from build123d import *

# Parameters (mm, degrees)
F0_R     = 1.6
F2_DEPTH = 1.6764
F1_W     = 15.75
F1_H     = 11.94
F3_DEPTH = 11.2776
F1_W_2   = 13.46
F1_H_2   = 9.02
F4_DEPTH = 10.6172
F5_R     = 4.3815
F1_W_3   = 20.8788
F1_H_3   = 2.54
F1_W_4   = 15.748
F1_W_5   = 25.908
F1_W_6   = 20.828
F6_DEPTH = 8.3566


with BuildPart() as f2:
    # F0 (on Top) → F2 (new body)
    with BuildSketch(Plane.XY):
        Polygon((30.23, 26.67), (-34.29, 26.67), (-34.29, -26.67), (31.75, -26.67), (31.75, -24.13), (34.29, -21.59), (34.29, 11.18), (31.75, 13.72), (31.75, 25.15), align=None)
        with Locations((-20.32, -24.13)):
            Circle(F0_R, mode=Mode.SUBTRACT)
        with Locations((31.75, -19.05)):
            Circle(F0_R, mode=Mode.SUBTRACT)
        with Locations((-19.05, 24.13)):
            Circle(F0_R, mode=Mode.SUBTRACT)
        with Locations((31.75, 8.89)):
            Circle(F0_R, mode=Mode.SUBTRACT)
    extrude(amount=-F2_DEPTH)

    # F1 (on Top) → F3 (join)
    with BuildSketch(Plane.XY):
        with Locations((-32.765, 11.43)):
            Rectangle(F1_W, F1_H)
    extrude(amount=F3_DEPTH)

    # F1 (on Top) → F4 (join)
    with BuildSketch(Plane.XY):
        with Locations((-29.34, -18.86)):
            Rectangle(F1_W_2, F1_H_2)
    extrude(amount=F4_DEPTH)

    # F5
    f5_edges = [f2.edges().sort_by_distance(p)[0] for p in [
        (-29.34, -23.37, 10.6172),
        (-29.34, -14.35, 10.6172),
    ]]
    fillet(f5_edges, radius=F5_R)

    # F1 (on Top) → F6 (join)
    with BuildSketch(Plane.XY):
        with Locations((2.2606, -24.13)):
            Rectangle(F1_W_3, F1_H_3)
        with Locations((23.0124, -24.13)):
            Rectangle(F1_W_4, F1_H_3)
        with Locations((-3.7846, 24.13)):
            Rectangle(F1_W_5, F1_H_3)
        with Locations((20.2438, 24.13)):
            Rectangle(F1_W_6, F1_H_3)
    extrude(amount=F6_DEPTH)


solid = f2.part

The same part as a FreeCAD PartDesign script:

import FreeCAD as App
import Part
import Sketcher
Q = App.Units.Quantity


def edges_at(feature, points):
    """Names of the edges that pass closest to the given points."""
    edges = feature.Shape.Edges
    near = lambda p: min(range(len(edges)), key=lambda i: edges[i].distToShape(Part.Vertex(*p))[0])
    return sorted({f"Edge{near(p) + 1}" for p in points})

doc = App.newDocument("Part")
body = doc.addObject("PartDesign::Body", "Body")

# Sketch on XY plane
sketch1 = body.newObject("Sketcher::SketchObject", "Sketch")
sketch1.AttachmentSupport = (doc.getObject("XY_Plane"), [""])
sketch1.MapMode = "FlatFace"
sketch1.addGeometry([
    Part.LineSegment(App.Vector(30.23, 26.67, 0), App.Vector(-34.29, 26.67, 0)),  # 0
    Part.LineSegment(App.Vector(-34.29, 26.67, 0), App.Vector(-34.29, -26.67, 0)),  # 1
    Part.LineSegment(App.Vector(-34.29, -26.67, 0), App.Vector(31.75, -26.67, 0)),  # 2
    Part.LineSegment(App.Vector(31.75, -26.67, 0), App.Vector(31.75, -24.13, 0)),  # 3
    Part.LineSegment(App.Vector(31.75, -24.13, 0), App.Vector(34.29, -21.59, 0)),  # 4
    Part.LineSegment(App.Vector(34.29, -21.59, 0), App.Vector(34.29, 11.18, 0)),  # 5
    Part.LineSegment(App.Vector(34.29, 11.18, 0), App.Vector(31.75, 13.72, 0)),  # 6
    Part.LineSegment(App.Vector(31.75, 13.72, 0), App.Vector(31.75, 25.15, 0)),  # 7
    Part.LineSegment(App.Vector(31.75, 25.15, 0), App.Vector(30.23, 26.67, 0)),  # 8
    Part.Circle(App.Vector(-20.32, -24.13, 0), App.Vector(0, 0, 1), 1.6),  # 9
    Part.Circle(App.Vector(31.75, -19.05, 0), App.Vector(0, 0, 1), 1.6),  # 10
    Part.Circle(App.Vector(-19.05, 24.13, 0), App.Vector(0, 0, 1), 1.6),  # 11
    Part.Circle(App.Vector(31.75, 8.89, 0), App.Vector(0, 0, 1), 1.6),  # 12
], False)
sketch1.addConstraint([
    Sketcher.Constraint("Coincident", 0, 2, 1, 1),
    Sketcher.Constraint("Coincident", 1, 2, 2, 1),
    Sketcher.Constraint("Coincident", 2, 2, 3, 1),
    Sketcher.Constraint("Coincident", 3, 2, 4, 1),
    Sketcher.Constraint("Coincident", 4, 2, 5, 1),
    Sketcher.Constraint("Coincident", 5, 2, 6, 1),
    Sketcher.Constraint("Coincident", 6, 2, 7, 1),
    Sketcher.Constraint("Coincident", 7, 2, 8, 1),
    Sketcher.Constraint("Coincident", 8, 2, 0, 1),
    Sketcher.Constraint("Horizontal", 0),
    Sketcher.Constraint("Vertical", 1),
    Sketcher.Constraint("Horizontal", 2),
    Sketcher.Constraint("Vertical", 3),
    Sketcher.Constraint("Vertical", 5),
    Sketcher.Constraint("Vertical", 7),
    Sketcher.Constraint("Equal", 9, 10),
    Sketcher.Constraint("Equal", 10, 11),
    Sketcher.Constraint("Equal", 11, 12),
    Sketcher.Constraint("Perpendicular", 4, 6),
    Sketcher.Constraint("Parallel", 6, 8),
    Sketcher.Constraint("Horizontal", 9, 3, 3, 2),
    Sketcher.Constraint("Vertical", 10, 3, 12, 3),
    Sketcher.Constraint("Vertical", 12, 3, 2, 2),
    Sketcher.Constraint("Vertical", 3, 2, 6, 2),
    Sketcher.Constraint("Equal", 4, 6),
    Sketcher.Constraint("DistanceX", 2, 1, 2, 2, Q("2.6 in")),
    Sketcher.Constraint("DistanceY", 1, 2, 1, 1, Q("2.1 in")),
    Sketcher.Constraint("DistanceY", 3, 1, 3, 2, Q("0.1 in")),
    Sketcher.Constraint("DistanceX", 11, 3, 10, 3, Q("2 in")),
    Sketcher.Constraint("DistanceY", 1, 2, 11, 3, Q("2 in")),
    Sketcher.Constraint("DistanceY", 7, 1, 7, 2, Q("0.45 in")),
    Sketcher.Constraint("DistanceX", 9, 3, -1, 1, Q("0.8 in")),
    Sketcher.Constraint("DistanceY", 9, 3, 10, 3, Q("0.2 in")),
    Sketcher.Constraint("DistanceY", 10, 3, 12, 3, Q("1.1 in")),
    Sketcher.Constraint("DistanceX", 10, 3, 4, 2, Q("0.1 in")),
    Sketcher.Constraint("Diameter", 9, 3.2),
    Sketcher.Constraint("DistanceY", 9, 3, -1, 1, Q("0.95 in")),
    Sketcher.Constraint("DistanceX", -1, 1, 10, 3, Q("1.25 in")),
    Sketcher.Constraint("DistanceX", 0, 2, 0, 1, 64.52),
])
pad1 = body.newObject("PartDesign::Pad", "Pad")
pad1.Profile = sketch1
pad1.Length = Q("0.066 in")
pad1.Reversed = True

# Sketch on XY plane
sketch2 = body.newObject("Sketcher::SketchObject", "Sketch001")
sketch2.AttachmentSupport = (doc.getObject("XY_Plane"), [""])
sketch2.MapMode = "FlatFace"
sketch2.addGeometry([
    Part.LineSegment(App.Vector(-40.64, 17.4, 0), App.Vector(-40.64, 5.46, 0)),
    Part.LineSegment(App.Vector(-40.64, 5.46, 0), App.Vector(-24.89, 5.46, 0)),
    Part.LineSegment(App.Vector(-24.89, 5.46, 0), App.Vector(-24.89, 17.4, 0)),
    Part.LineSegment(App.Vector(-24.89, 17.4, 0), App.Vector(-40.64, 17.4, 0)),
], False)
sketch2.addConstraint([
    Sketcher.Constraint("Coincident", 0, 2, 1, 1),
    Sketcher.Constraint("Coincident", 1, 2, 2, 1),
    Sketcher.Constraint("Coincident", 2, 2, 3, 1),
    Sketcher.Constraint("Coincident", 3, 2, 0, 1),
    Sketcher.Constraint("Vertical", 0),
    Sketcher.Constraint("Horizontal", 1),
    Sketcher.Constraint("Vertical", 2),
    Sketcher.Constraint("Horizontal", 3),
    Sketcher.Constraint("DistanceX", 0, 2, -1, 1, Q("1.6 in")),
    Sketcher.Constraint("DistanceX", 1, 1, 1, 2, 15.75),
    Sketcher.Constraint("DistanceY", 0, 2, 0, 1, 11.94),
    Sketcher.Constraint("DistanceY", -1, 1, 0, 2, 5.46),
])
pad2 = body.newObject("PartDesign::Pad", "Pad001")
pad2.Profile = sketch2
pad2.Length = Q("0.444 in")

# Sketch on XY plane
sketch3 = body.newObject("Sketcher::SketchObject", "Sketch002")
sketch3.AttachmentSupport = (doc.getObject("XY_Plane"), [""])
sketch3.MapMode = "FlatFace"
sketch3.addGeometry([
    Part.LineSegment(App.Vector(-36.07, -14.35, 0), App.Vector(-36.07, -23.37, 0)),
    Part.LineSegment(App.Vector(-36.07, -23.37, 0), App.Vector(-22.61, -23.37, 0)),
    Part.LineSegment(App.Vector(-22.61, -23.37, 0), App.Vector(-22.61, -14.35, 0)),
    Part.LineSegment(App.Vector(-22.61, -14.35, 0), App.Vector(-36.07, -14.35, 0)),
], False)
sketch3.addConstraint([
    Sketcher.Constraint("Coincident", 0, 2, 1, 1),
    Sketcher.Constraint("Coincident", 1, 2, 2, 1),
    Sketcher.Constraint("Coincident", 2, 2, 3, 1),
    Sketcher.Constraint("Coincident", 3, 2, 0, 1),
    Sketcher.Constraint("Vertical", 0),
    Sketcher.Constraint("Horizontal", 1),
    Sketcher.Constraint("Vertical", 2),
    Sketcher.Constraint("Horizontal", 3),
    Sketcher.Constraint("DistanceX", 1, 1, 1, 2, 13.46),
    Sketcher.Constraint("DistanceY", 0, 2, 0, 1, 9.02),
    Sketcher.Constraint("DistanceX", 0, 2, -1, 1, 36.07),
    Sketcher.Constraint("DistanceY", 0, 2, -1, 1, 23.37),
])
pad3 = body.newObject("PartDesign::Pad", "Pad002")
pad3.Profile = sketch3
pad3.Length = Q("0.418 in")
doc.recompute()

fillet = body.newObject("PartDesign::Fillet", "Fillet")
fillet.Base = (pad3, edges_at(pad3, [(-29.34, -23.37, 10.617), (-29.34, -14.35, 10.617)]))
fillet.Radius = Q("0.1725 in")

# Sketch on XY plane
sketch4 = body.newObject("Sketcher::SketchObject", "Sketch003")
sketch4.AttachmentSupport = (doc.getObject("XY_Plane"), [""])
sketch4.MapMode = "FlatFace"
sketch4.addGeometry([
    Part.LineSegment(App.Vector(-8.1788, -22.86, 0), App.Vector(-8.1788, -25.4, 0)),  # 0
    Part.LineSegment(App.Vector(-8.1788, -25.4, 0), App.Vector(12.7, -25.4, 0)),  # 1
    Part.LineSegment(App.Vector(12.7, -25.4, 0), App.Vector(12.7, -22.86, 0)),  # 2
    Part.LineSegment(App.Vector(12.7, -22.86, 0), App.Vector(-8.1788, -22.86, 0)),  # 3
    Part.LineSegment(App.Vector(15.1384, -22.86, 0), App.Vector(15.1384, -25.4, 0)),  # 4
    Part.LineSegment(App.Vector(15.1384, -25.4, 0), App.Vector(30.8864, -25.4, 0)),  # 5
    Part.LineSegment(App.Vector(30.8864, -25.4, 0), App.Vector(30.8864, -22.86, 0)),  # 6
    Part.LineSegment(App.Vector(30.8864, -22.86, 0), App.Vector(15.1384, -22.86, 0)),  # 7
    Part.LineSegment(App.Vector(-16.7386, 25.4, 0), App.Vector(-16.7386, 22.86, 0)),  # 8
    Part.LineSegment(App.Vector(-16.7386, 22.86, 0), App.Vector(9.1694, 22.86, 0)),  # 9
    Part.LineSegment(App.Vector(9.1694, 22.86, 0), App.Vector(9.1694, 25.4, 0)),  # 10
    Part.LineSegment(App.Vector(9.1694, 25.4, 0), App.Vector(-16.7386, 25.4, 0)),  # 11
    Part.LineSegment(App.Vector(9.8298, 25.4, 0), App.Vector(9.8298, 22.86, 0)),  # 12
    Part.LineSegment(App.Vector(9.8298, 22.86, 0), App.Vector(30.6578, 22.86, 0)),  # 13
    Part.LineSegment(App.Vector(30.6578, 22.86, 0), App.Vector(30.6578, 25.4, 0)),  # 14
    Part.LineSegment(App.Vector(30.6578, 25.4, 0), App.Vector(9.8298, 25.4, 0)),  # 15
], False)
sketch4.addConstraint([
    Sketcher.Constraint("Coincident", 0, 2, 1, 1),
    Sketcher.Constraint("Coincident", 1, 2, 2, 1),
    Sketcher.Constraint("Coincident", 2, 2, 3, 1),
    Sketcher.Constraint("Coincident", 3, 2, 0, 1),
    Sketcher.Constraint("Coincident", 4, 2, 5, 1),
    Sketcher.Constraint("Coincident", 5, 2, 6, 1),
    Sketcher.Constraint("Coincident", 6, 2, 7, 1),
    Sketcher.Constraint("Coincident", 7, 2, 4, 1),
    Sketcher.Constraint("Coincident", 8, 2, 9, 1),
    Sketcher.Constraint("Coincident", 9, 2, 10, 1),
    Sketcher.Constraint("Coincident", 10, 2, 11, 1),
    Sketcher.Constraint("Coincident", 11, 2, 8, 1),
    Sketcher.Constraint("Coincident", 12, 2, 13, 1),
    Sketcher.Constraint("Coincident", 13, 2, 14, 1),
    Sketcher.Constraint("Coincident", 14, 2, 15, 1),
    Sketcher.Constraint("Coincident", 15, 2, 12, 1),
    Sketcher.Constraint("Vertical", 0),
    Sketcher.Constraint("Horizontal", 1),
    Sketcher.Constraint("Vertical", 2),
    Sketcher.Constraint("Horizontal", 3),
    Sketcher.Constraint("Vertical", 4),
    Sketcher.Constraint("Horizontal", 5),
    Sketcher.Constraint("Vertical", 6),
    Sketcher.Constraint("Horizontal", 7),
    Sketcher.Constraint("Vertical", 8),
    Sketcher.Constraint("Horizontal", 9),
    Sketcher.Constraint("Vertical", 10),
    Sketcher.Constraint("Horizontal", 11),
    Sketcher.Constraint("Vertical", 12),
    Sketcher.Constraint("Horizontal", 13),
    Sketcher.Constraint("Vertical", 14),
    Sketcher.Constraint("Horizontal", 15),
    Sketcher.Constraint("Horizontal", 1, 2, 4, 2),
    Sketcher.Constraint("Horizontal", 3, 2, 6, 2),
    Sketcher.Constraint("Horizontal", 9, 2, 12, 2),
    Sketcher.Constraint("Horizontal", 11, 2, 14, 2),
    Sketcher.Constraint("Equal", 6, 8),
    Sketcher.Constraint("DistanceY", 0, 2, 0, 1, Q("0.1 in")),
    Sketcher.Constraint("DistanceY", 0, 2, -1, 1, Q("1 in")),
    Sketcher.Constraint("DistanceY", -1, 1, 10, 2, Q("1 in")),
    Sketcher.Constraint("DistanceX", 5, 1, 5, 2, Q("0.62 in")),
    Sketcher.Constraint("DistanceX", 9, 1, 9, 2, Q("1.02 in")),
    Sketcher.Constraint("DistanceX", 13, 1, 13, 2, Q("0.82 in")),
    Sketcher.Constraint("DistanceX", -1, 1, 1, 2, Q("0.5 in")),
    Sketcher.Constraint("DistanceX", 1, 1, 1, 2, Q("0.822 in")),
    Sketcher.Constraint("DistanceX", -1, 1, 4, 2, Q("0.596 in")),
    Sketcher.Constraint("DistanceX", 8, 2, -1, 1, Q("0.659 in")),
    Sketcher.Constraint("DistanceX", -1, 1, 12, 2, Q("0.387 in")),
])
pad4 = body.newObject("PartDesign::Pad", "Pad003")
pad4.Profile = sketch4
pad4.Length = Q("0.329 in")

doc.recompute()
